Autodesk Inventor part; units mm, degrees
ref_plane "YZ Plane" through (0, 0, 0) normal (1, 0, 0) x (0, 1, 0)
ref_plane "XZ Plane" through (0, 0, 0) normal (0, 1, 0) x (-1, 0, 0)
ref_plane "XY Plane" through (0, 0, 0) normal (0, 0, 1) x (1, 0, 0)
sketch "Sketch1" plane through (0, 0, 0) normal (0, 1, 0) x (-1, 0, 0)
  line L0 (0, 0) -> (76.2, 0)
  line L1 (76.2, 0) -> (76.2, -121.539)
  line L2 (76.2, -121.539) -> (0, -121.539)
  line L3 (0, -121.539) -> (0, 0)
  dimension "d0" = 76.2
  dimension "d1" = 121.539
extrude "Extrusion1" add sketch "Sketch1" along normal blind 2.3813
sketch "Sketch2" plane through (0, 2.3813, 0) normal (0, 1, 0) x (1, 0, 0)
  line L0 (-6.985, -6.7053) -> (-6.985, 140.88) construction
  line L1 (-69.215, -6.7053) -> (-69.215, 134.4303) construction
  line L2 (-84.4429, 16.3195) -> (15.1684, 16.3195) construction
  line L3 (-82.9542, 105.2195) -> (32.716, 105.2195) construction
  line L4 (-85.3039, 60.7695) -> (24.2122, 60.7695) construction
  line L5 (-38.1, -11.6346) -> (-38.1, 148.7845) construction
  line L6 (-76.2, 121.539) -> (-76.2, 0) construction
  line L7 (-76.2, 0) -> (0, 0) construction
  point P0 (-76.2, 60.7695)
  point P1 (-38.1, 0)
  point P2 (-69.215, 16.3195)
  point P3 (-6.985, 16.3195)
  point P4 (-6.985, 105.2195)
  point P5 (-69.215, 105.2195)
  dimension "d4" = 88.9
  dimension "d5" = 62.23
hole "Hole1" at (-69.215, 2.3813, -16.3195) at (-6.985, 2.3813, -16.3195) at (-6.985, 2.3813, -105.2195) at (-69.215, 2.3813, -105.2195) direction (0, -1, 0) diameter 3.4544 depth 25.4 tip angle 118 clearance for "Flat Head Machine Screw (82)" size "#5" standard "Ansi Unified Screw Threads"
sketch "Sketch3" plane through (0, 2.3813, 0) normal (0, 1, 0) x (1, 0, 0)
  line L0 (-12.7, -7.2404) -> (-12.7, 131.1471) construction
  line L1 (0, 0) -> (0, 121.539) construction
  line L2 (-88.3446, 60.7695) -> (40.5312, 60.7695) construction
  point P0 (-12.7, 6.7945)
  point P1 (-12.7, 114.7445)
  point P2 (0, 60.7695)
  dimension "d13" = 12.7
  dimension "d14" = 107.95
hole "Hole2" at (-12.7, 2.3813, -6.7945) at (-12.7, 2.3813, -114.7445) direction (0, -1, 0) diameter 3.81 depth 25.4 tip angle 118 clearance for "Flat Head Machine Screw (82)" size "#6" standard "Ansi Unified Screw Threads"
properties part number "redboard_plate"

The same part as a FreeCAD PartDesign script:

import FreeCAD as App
import Part
import Sketcher
Q = App.Units.Quantity

doc = App.newDocument("Part")
body = doc.addObject("PartDesign::Body", "Body")

# Sketch on XZ plane
sketch1 = body.newObject("Sketcher::SketchObject", "Sketch")
sketch1.AttachmentSupport = (doc.getObject("XZ_Plane"), [""])
sketch1.MapMode = "FlatFace"
sketch1.addGeometry(Part.LineSegment(App.Vector(-76, 0, 0), App.Vector(0, 0, 0)), False)
sketch1.addGeometry(Part.LineSegment(App.Vector(0, 0, 0), App.Vector(0, -122, 0)), False)
sketch1.addGeometry(Part.LineSegment(App.Vector(0, -122, 0), App.Vector(-76, -122, 0)), False)
sketch1.addGeometry(Part.LineSegment(App.Vector(-76, -122, 0), App.Vector(-76, 0, 0)), False)
sketch1.addConstraint(Sketcher.Constraint("Coincident", 0, 2, 1, 1))
sketch1.addConstraint(Sketcher.Constraint("Coincident", 1, 2, 2, 1))
sketch1.addConstraint(Sketcher.Constraint("Coincident", 2, 2, 3, 1))
sketch1.addConstraint(Sketcher.Constraint("Coincident", 3, 2, 0, 1))
sketch1.addConstraint(Sketcher.Constraint("Horizontal", 0))
sketch1.addConstraint(Sketcher.Constraint("Vertical", 1))
sketch1.addConstraint(Sketcher.Constraint("Horizontal", 2))
sketch1.addConstraint(Sketcher.Constraint("Vertical", 3))
sketch1.addConstraint(Sketcher.Constraint("Coincident", 0, 2, -1, 1))
sketch1.addConstraint(Sketcher.Constraint("DistanceX", 0, 1, 0, 2, Q("3 in")))
sketch1.addConstraint(Sketcher.Constraint("DistanceY", 1, 2, 1, 1, Q("4.785 in")))
pad1 = body.newObject("PartDesign::Pad", "Pad")
pad1.Profile = sketch1
pad1.Length = Q("0.093752 in")
pad1.Reversed = True

# Sketch on XZ plane
sketch2 = body.newObject("Sketcher::SketchObject", "Sketch001")
sketch2.AttachmentSupport = (doc.getObject("XZ_Plane"), [""])
sketch2.MapMode = "FlatFace"
sketch2.AttachmentOffset = App.Placement(App.Vector(0, 0, -0.093752 * 25.4), App.Rotation())
sketch2.addGeometry(Part.Circle(App.Vector(-69.2, -16.3, 0), App.Vector(0, 0, 1), 1.7), False)
sketch2.addGeometry(Part.Circle(App.Vector(-7, -16.3, 0), App.Vector(0, 0, 1), 1.7), False)
sketch2.addGeometry(Part.Circle(App.Vector(-7, -105.2, 0), App.Vector(0, 0, 1), 1.7), False)
sketch2.addGeometry(Part.Circle(App.Vector(-69.2, -105.2, 0), App.Vector(0, 0, 1), 1.7), False)
sketch2.addConstraint(Sketcher.Constraint("Equal", 0, 1))
sketch2.addConstraint(Sketcher.Constraint("Equal", 1, 2))
sketch2.addConstraint(Sketcher.Constraint("Equal", 2, 3))
sketch2.addConstraint(Sketcher.Constraint("Horizontal", 0, 3, 1, 3))
sketch2.addConstraint(Sketcher.Constraint("Horizontal", 2, 3, 3, 3))
sketch2.addConstraint(Sketcher.Constraint("Vertical", 1, 3, 2, 3))
sketch2.addConstraint(Sketcher.Constraint("Vertical", 0, 3, 3, 3))
sketch2.addConstraint(Sketcher.Constraint("Diameter", 0, Q("0.136 in")))
sketch2.addConstraint(Sketcher.Constraint("DistanceY", 2, 3, 1, 3, Q("3.5 in")))
sketch2.addConstraint(Sketcher.Constraint("DistanceX", 0, 3, 1, 3, Q("2.45 in")))
sketch2.addConstraint(Sketcher.Constraint("DistanceX", 0, 3, -1, 1, Q("2.725 in")))
sketch2.addConstraint(Sketcher.Constraint("DistanceY", 0, 3, -1, 1, Q("0.6425 in")))
doc.recompute()
hole = body.newObject("PartDesign::Hole", "Hole")
hole.Profile = sketch2
hole.ThreadType = "None"
hole.Diameter = Q("0.136 in")
hole.DepthType = "Dimension"
hole.Depth = Q("1 in")
hole.DrillPoint = "Angled"
hole.DrillPointAngle = 118
hole.Reversed = True

# Sketch on XZ plane
sketch3 = body.newObject("Sketcher::SketchObject", "Sketch002")
sketch3.AttachmentSupport = (doc.getObject("XZ_Plane"), [""])
sketch3.MapMode = "FlatFace"
sketch3.AttachmentOffset = App.Placement(App.Vector(0, 0, -0.093752 * 25.4), App.Rotation())
sketch3.addGeometry(Part.Circle(App.Vector(-12.7, -6.8, 0), App.Vector(0, 0, 1), 1.9), False)
sketch3.addGeometry(Part.Circle(App.Vector(-12.7, -114.7, 0), App.Vector(0, 0, 1), 1.9), False)
sketch3.addConstraint(Sketcher.Constraint("Equal", 0, 1))
sketch3.addConstraint(Sketcher.Constraint("Vertical", 0, 3, 1, 3))
sketch3.addConstraint(Sketcher.Constraint("Diameter", 0, Q("0.15 in")))
sketch3.addConstraint(Sketcher.Constraint("DistanceX", 0, 3, -1, 1, Q("0.5 in")))
sketch3.addConstraint(Sketcher.Constraint("DistanceY", 1, 3, 0, 3, Q("4.25 in")))
sketch3.addConstraint(Sketcher.Constraint("DistanceY", 0, 3, -1, 1, Q("0.2675 in")))
doc.recompute()
hole2 = body.newObject("PartDesign::Hole", "Hole001")
hole2.Profile = sketch3
hole2.ThreadType = "None"
hole2.Diameter = Q("0.15 in")
hole2.DepthType = "Dimension"
hole2.Depth = Q("1 in")
hole2.DrillPoint = "Angled"
hole2.DrillPointAngle = 118
hole2.Reversed = True

doc.recompute()
